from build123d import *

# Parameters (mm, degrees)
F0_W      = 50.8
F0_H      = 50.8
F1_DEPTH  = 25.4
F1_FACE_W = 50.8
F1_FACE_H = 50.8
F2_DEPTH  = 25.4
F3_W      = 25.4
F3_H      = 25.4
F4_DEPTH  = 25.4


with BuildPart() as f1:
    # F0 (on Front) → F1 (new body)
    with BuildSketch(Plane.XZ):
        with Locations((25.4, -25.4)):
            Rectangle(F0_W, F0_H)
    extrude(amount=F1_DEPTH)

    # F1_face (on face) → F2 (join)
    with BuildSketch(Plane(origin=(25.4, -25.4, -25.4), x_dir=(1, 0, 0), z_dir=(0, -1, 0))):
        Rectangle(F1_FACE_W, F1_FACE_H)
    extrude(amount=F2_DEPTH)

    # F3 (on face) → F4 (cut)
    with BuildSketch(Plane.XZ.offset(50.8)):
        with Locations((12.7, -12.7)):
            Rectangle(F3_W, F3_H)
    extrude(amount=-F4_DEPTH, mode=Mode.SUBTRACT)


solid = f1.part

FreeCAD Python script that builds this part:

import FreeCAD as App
import Part
import Sketcher

V = App.Vector
Q = App.Units.Quantity

doc = App.newDocument("Part")
body = doc.addObject("PartDesign::Body", "Body")

sketch1 = body.newObject("Sketcher::SketchObject", "Sketch")
sketch1.AttachmentSupport = (doc.getObject("XZ_Plane"), [""])
sketch1.MapMode = "FlatFace"
sketch1.addGeometry(Part.LineSegment(V(0, 0, 0), V(0, -51, 0)), False)
sketch1.addGeometry(Part.LineSegment(V(0, -51, 0), V(51, -51, 0)), False)
sketch1.addGeometry(Part.LineSegment(V(51, -51, 0), V(51, 0, 0)), False)
sketch1.addGeometry(Part.LineSegment(V(51, 0, 0), V(0, 0, 0)), False)
sketch1.addConstraint(Sketcher.Constraint("Coincident", 0, 2, 1, 1))
sketch1.addConstraint(Sketcher.Constraint("Coincident", 1, 2, 2, 1))
sketch1.addConstraint(Sketcher.Constraint("Coincident", 2, 2, 3, 1))
sketch1.addConstraint(Sketcher.Constraint("Coincident", 3, 2, 0, 1))
sketch1.addConstraint(Sketcher.Constraint("Vertical", 0))
sketch1.addConstraint(Sketcher.Constraint("Horizontal", 1))
sketch1.addConstraint(Sketcher.Constraint("Vertical", 2))
sketch1.addConstraint(Sketcher.Constraint("Horizontal", 3))
sketch1.addConstraint(Sketcher.Constraint("Coincident", 3, 2, -1, 1))
sketch1.addConstraint(Sketcher.Constraint("Equal", 3, 0))
sketch1.addConstraint(Sketcher.Constraint("DistanceX", 1, 1, 1, 2, Q("2 in")))
pad1 = body.newObject("PartDesign::Pad", "Pad")
pad1.Profile = sketch1
pad1.Length = Q("1 in")

sketch2 = body.newObject("Sketcher::SketchObject", "Sketch001")
sketch2.AttachmentSupport = (doc.getObject("XZ_Plane"), [""])
sketch2.MapMode = "FlatFace"
sketch2.AttachmentOffset = App.Placement(V(0, 0, 1 * 25.4), App.Rotation())
sketch2.addGeometry(Part.LineSegment(V(0, 0, 0), V(0, -51, 0)), False)
sketch2.addGeometry(Part.LineSegment(V(0, -51, 0), V(51, -51, 0)), False)
sketch2.addGeometry(Part.LineSegment(V(51, -51, 0), V(51, 0, 0)), False)
sketch2.addGeometry(Part.LineSegment(V(51, 0, 0), V(0, 0, 0)), False)
sketch2.addConstraint(Sketcher.Constraint("Coincident", 0, 2, 1, 1))
sketch2.addConstraint(Sketcher.Constraint("Coincident", 1, 2, 2, 1))
sketch2.addConstraint(Sketcher.Constraint("Coincident", 2, 2, 3, 1))
sketch2.addConstraint(Sketcher.Constraint("Coincident", 3, 2, 0, 1))
sketch2.addConstraint(Sketcher.Constraint("Vertical", 0))
sketch2.addConstraint(Sketcher.Constraint("Horizontal", 1))
sketch2.addConstraint(Sketcher.Constraint("Vertical", 2))
sketch2.addConstraint(Sketcher.Constraint("Horizontal", 3))
sketch2.addConstraint(Sketcher.Constraint("Coincident", 3, 2, -1, 1))
sketch2.addConstraint(Sketcher.Constraint("Equal", 3, 0))
sketch2.addConstraint(Sketcher.Constraint("DistanceX", 1, 1, 1, 2, Q("2 in")))
pad2 = body.newObject("PartDesign::Pad", "Pad001")
pad2.Profile = sketch2
pad2.Length = Q("1 in")

sketch3 = body.newObject("Sketcher::SketchObject", "Sketch002")
sketch3.AttachmentSupport = (doc.getObject("XZ_Plane"), [""])
sketch3.MapMode = "FlatFace"
sketch3.AttachmentOffset = App.Placement(V(0, 0, 2 * 25.4), App.Rotation())
sketch3.addGeometry(Part.LineSegment(V(0, 0, 0), V(0, -25, 0)), False)
sketch3.addGeometry(Part.LineSegment(V(0, -25, 0), V(25, -25, 0)), False)
sketch3.addGeometry(Part.LineSegment(V(25, -25, 0), V(25, 0, 0)), False)
sketch3.addGeometry(Part.LineSegment(V(25, 0, 0), V(0, 0, 0)), False)
sketch3.addConstraint(Sketcher.Constraint("Coincident", 0, 2, 1, 1))
sketch3.addConstraint(Sketcher.Constraint("Coincident", 1, 2, 2, 1))
sketch3.addConstraint(Sketcher.Constraint("Coincident", 2, 2, 3, 1))
sketch3.addConstraint(Sketcher.Constraint("Coincident", 3, 2, 0, 1))
sketch3.addConstraint(Sketcher.Constraint("Vertical", 0))
sketch3.addConstraint(Sketcher.Constraint("Horizontal", 1))
sketch3.addConstraint(Sketcher.Constraint("Vertical", 2))
sketch3.addConstraint(Sketcher.Constraint("Horizontal", 3))
sketch3.addConstraint(Sketcher.Constraint("Coincident", 3, 2, -1, 1))
sketch3.addConstraint(Sketcher.Constraint("Equal", 3, 0))
sketch3.addConstraint(Sketcher.Constraint("DistanceX", 1, 1, 1, 2, Q("1 in")))
pocket1 = body.newObject("PartDesign::Pocket", "Pocket")
pocket1.Profile = sketch3
pocket1.Length = Q("1 in")

doc.recompute()
